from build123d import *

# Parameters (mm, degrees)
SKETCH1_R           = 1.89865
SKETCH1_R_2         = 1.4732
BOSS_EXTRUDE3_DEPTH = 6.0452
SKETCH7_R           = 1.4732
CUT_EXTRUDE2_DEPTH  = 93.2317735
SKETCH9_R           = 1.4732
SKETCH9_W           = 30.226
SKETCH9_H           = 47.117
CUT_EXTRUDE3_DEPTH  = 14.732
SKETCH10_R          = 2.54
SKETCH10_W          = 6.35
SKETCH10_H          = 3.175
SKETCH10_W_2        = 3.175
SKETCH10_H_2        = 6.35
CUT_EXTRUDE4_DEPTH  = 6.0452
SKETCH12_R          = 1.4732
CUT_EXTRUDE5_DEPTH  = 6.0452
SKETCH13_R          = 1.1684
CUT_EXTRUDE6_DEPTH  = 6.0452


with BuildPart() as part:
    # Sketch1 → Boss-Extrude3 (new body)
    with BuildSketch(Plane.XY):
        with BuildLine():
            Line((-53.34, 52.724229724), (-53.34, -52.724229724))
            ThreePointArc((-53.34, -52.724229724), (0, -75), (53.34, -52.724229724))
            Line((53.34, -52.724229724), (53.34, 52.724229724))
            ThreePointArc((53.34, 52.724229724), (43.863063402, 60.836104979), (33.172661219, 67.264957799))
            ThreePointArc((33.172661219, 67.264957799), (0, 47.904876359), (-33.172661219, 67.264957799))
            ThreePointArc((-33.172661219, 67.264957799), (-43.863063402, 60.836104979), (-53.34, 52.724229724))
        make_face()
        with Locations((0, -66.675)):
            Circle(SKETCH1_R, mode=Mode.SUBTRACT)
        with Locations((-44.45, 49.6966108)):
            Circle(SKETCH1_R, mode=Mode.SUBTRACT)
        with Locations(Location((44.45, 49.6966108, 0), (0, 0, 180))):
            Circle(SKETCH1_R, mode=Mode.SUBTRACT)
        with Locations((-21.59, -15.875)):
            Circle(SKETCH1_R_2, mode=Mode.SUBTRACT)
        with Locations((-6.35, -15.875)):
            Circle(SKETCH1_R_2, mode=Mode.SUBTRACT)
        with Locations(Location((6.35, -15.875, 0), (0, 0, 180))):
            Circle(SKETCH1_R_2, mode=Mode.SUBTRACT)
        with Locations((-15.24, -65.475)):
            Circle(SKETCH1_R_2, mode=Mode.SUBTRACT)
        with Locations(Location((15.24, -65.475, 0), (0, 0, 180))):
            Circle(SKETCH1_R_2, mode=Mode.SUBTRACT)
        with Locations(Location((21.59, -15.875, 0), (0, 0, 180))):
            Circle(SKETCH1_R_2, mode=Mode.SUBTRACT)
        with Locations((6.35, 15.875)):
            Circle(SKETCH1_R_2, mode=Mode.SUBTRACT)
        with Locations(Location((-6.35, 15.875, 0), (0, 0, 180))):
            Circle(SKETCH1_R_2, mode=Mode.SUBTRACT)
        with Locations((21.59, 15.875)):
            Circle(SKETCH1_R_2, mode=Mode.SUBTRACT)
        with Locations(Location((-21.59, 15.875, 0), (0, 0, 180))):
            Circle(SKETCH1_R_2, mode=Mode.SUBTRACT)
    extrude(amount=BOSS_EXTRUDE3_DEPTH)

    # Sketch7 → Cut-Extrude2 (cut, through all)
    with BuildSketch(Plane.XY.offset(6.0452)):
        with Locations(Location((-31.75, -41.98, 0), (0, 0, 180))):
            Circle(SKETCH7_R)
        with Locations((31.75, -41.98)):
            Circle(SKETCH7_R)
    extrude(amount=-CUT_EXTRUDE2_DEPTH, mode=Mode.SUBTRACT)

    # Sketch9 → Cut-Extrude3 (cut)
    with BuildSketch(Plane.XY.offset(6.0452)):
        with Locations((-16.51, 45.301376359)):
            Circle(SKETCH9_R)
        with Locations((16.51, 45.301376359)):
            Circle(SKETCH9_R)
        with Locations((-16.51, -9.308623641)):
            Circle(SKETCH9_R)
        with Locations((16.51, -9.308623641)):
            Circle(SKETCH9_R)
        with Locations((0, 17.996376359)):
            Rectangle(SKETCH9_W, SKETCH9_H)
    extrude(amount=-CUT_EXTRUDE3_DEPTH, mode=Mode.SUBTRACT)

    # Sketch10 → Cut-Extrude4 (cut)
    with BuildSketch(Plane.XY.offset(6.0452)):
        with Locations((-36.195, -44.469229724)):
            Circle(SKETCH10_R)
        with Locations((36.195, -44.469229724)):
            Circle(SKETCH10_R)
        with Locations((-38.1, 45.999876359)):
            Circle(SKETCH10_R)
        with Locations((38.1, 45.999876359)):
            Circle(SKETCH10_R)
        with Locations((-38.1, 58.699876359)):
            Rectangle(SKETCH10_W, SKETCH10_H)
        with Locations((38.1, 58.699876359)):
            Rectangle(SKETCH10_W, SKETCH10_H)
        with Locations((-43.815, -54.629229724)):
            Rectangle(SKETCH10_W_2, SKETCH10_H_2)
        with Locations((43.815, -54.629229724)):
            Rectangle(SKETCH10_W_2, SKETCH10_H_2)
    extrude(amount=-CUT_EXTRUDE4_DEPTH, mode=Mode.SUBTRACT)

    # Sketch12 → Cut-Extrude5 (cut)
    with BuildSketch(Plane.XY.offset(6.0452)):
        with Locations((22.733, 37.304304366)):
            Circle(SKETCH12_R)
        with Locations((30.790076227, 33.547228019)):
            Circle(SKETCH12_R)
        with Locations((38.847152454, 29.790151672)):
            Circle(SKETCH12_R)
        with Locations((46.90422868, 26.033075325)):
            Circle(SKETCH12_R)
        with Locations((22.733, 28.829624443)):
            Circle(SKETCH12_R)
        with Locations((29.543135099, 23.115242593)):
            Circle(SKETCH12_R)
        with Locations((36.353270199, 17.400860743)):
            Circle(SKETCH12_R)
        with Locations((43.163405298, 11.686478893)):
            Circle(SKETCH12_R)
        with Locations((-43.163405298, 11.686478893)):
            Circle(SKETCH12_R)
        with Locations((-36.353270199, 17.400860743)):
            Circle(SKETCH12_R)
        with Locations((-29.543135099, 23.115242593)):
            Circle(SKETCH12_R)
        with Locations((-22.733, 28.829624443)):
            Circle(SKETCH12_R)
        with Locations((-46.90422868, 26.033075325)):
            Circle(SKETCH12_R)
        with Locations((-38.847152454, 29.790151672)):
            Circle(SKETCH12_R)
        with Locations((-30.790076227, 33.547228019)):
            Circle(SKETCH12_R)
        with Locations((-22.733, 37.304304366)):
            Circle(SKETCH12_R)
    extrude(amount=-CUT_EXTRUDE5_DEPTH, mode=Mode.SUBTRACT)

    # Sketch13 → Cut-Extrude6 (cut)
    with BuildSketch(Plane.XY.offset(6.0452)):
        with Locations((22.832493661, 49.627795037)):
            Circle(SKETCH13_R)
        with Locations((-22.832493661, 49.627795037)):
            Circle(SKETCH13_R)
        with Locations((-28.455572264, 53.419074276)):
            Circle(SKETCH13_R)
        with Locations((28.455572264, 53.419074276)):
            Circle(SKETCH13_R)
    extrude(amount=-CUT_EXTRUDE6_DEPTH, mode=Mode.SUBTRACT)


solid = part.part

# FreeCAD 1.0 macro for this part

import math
import FreeCAD as App
import Part
import Sketcher

V = App.Vector
Q = App.Units.Quantity


def add_polygon(sketch, points):
    """Adds a closed chain of lines whose ends are joined by coincident constraints."""
    first, n = sketch.GeometryCount, len(points)
    for a, b in zip(points, points[1:] + points[:1]):
        sketch.addGeometry(Part.LineSegment(App.Vector(*a, 0), App.Vector(*b, 0)), False)
    for i in range(n):
        sketch.addConstraint(Sketcher.Constraint("Coincident", first + i, 2, first + (i + 1) % n, 1))

doc = App.newDocument("Part")
body = doc.addObject("PartDesign::Body", "Body")

sketch1 = doc.addObject("Sketcher::SketchObject", "Sketch")
body.addObject(sketch1)
sketch1.AttachmentSupport = (doc.XY_Plane, [""])
sketch1.MapMode = "FlatFace"
sketch1.addGeometry([
    Part.LineSegment(V(-53.3, 52.7, 0), V(-53.3, -52.7, 0)),
    Part.ArcOfCircle(Part.Circle(V(0, 0, 0), V(0, 0, 1), 75), math.radians(-135), math.radians(-45)),
    Part.LineSegment(V(53.3, -52.7, 0), V(53.3, 52.7, 0)),
    Part.ArcOfCircle(Part.Circle(V(0, 0, 0), V(0, 0, 1), 75), math.radians(44.67), math.radians(63.75)),
    Part.ArcOfCircle(Part.Circle(V(0, 86, 0), V(0, 0, 1), 38.1), math.radians(-151), math.radians(-29)),
    Part.ArcOfCircle(Part.Circle(V(0, 0, 0), V(0, 0, 1), 75), math.radians(116.25), math.radians(135.33)),
    Part.Circle(V(-15.2, -65.5, 0), V(0, 0, 1), 1.5),
    Part.Circle(V(-21.6, -15.9, 0), V(0, 0, 1), 1.5),
    Part.Circle(V(-6.3, -15.9, 0), V(0, 0, 1), 1.5),
    Part.Circle(V(0, -66.7, 0), V(0, 0, 1), 1.9),
    Part.Circle(V(15.2, -65.5, 0), V(0, 0, 1), 1.5),
    Part.Circle(V(6.3, -15.9, 0), V(0, 0, 1), 1.5),
    Part.Circle(V(21.6, -15.9, 0), V(0, 0, 1), 1.5),
    Part.Circle(V(-21.6, 15.9, 0), V(0, 0, 1), 1.5),
    Part.Circle(V(-6.3, 15.9, 0), V(0, 0, 1), 1.5),
    Part.Circle(V(-44.5, 49.7, 0), V(0, 0, 1), 1.9),
    Part.Circle(V(6.3, 15.9, 0), V(0, 0, 1), 1.5),
    Part.Circle(V(21.6, 15.9, 0), V(0, 0, 1), 1.5),
    Part.Circle(V(44.5, 49.7, 0), V(0, 0, 1), 1.9),
], False)
sketch1.addConstraint([
    Sketcher.Constraint("Coincident", 0, 2, 1, 1),
    Sketcher.Constraint("Coincident", 1, 2, 2, 1),
    Sketcher.Constraint("Coincident", 2, 2, 3, 1),
    Sketcher.Constraint("Coincident", 3, 2, 4, 2),
    Sketcher.Constraint("Coincident", 4, 1, 5, 1),
    Sketcher.Constraint("Coincident", 5, 2, 0, 1),
    Sketcher.Constraint("Vertical", 0),
    Sketcher.Constraint("Vertical", 2),
    Sketcher.Constraint("Coincident", 1, 3, -1, 1),
    Sketcher.Constraint("Coincident", 3, 3, -1, 1),
    Sketcher.Constraint("Coincident", 5, 3, -1, 1),
    Sketcher.Constraint("Equal", 1, 3),
    Sketcher.Constraint("Equal", 3, 5),
    Sketcher.Constraint("Equal", 6, 7),
    Sketcher.Constraint("Equal", 7, 8),
    Sketcher.Constraint("Equal", 8, 10),
    Sketcher.Constraint("Equal", 10, 11),
    Sketcher.Constraint("Equal", 11, 12),
    Sketcher.Constraint("Equal", 12, 13),
    Sketcher.Constraint("Equal", 13, 14),
    Sketcher.Constraint("Equal", 9, 15),
    Sketcher.Constraint("Equal", 14, 16),
    Sketcher.Constraint("Equal", 16, 17),
    Sketcher.Constraint("Equal", 15, 18),
    Sketcher.Constraint("Symmetric", 12, 3, 13, 3, -1, 1),
    Sketcher.Constraint("Symmetric", 11, 3, 14, 3, -1, 1),
    Sketcher.Constraint("Symmetric", 8, 3, 16, 3, -1, 1),
    Sketcher.Constraint("Symmetric", 7, 3, 17, 3, -1, 1),
    Sketcher.Constraint("Symmetric", 6, 3, 10, 3, -2),
    Sketcher.Constraint("Symmetric", 8, 3, 11, 3, -2),
    Sketcher.Constraint("Symmetric", 7, 3, 12, 3, -2),
    Sketcher.Constraint("Symmetric", 15, 3, 18, 3, -2),
    Sketcher.Constraint("PointOnObject", 4, 3, -2),
    Sketcher.Constraint("PointOnObject", 9, 3, -2),
    Sketcher.Constraint("Horizontal", 7, 3, 8, 3),
    Sketcher.Constraint("Horizontal", 0, 2, 1, 2),
    Sketcher.Constraint("Radius", 4, Q("1.5 in")),
    Sketcher.Constraint("Diameter", 6, Q("0.116 in")),
    Sketcher.Constraint("DistanceY", 9, 3, 8, 3, Q("2 in")),
    Sketcher.Constraint("DistanceX", 14, 3, 18, 3, Q("2 in")),
    Sketcher.Constraint("Diameter", 9, Q("0.1495 in")),
    Sketcher.Constraint("DistanceX", 6, 3, -1, 1, Q("0.6 in")),
    Sketcher.Constraint("DistanceX", 0, 2, -1, 1, Q("2.1 in")),
    Sketcher.Constraint("DistanceX", 7, 3, 8, 3, Q("0.6 in")),
    Sketcher.Constraint("DistanceX", 8, 3, 11, 3, Q("0.5 in")),
    Sketcher.Constraint("Radius", 1, Q("75 mm")),
    Sketcher.Constraint("DistanceY", 7, 3, 13, 3, Q("1.25 in")),
    Sketcher.Constraint("DistanceY", 6, 3, -1, 1, Q("65.475 mm")),
    Sketcher.Constraint("DistanceY", -1, 1, 15, 3, Q("49.696611 mm")),
    Sketcher.Constraint("DistanceX", -1, 1, 3, 2, Q("33.172661 mm")),
])
pad1 = doc.addObject("PartDesign::Pad", "Pad")
body.addObject(pad1)
pad1.Profile = sketch1
pad1.Length = Q("0.238 in")

sketch2 = doc.addObject("Sketcher::SketchObject", "Sketch001")
body.addObject(sketch2)
sketch2.AttachmentSupport = (doc.XY_Plane, [""])
sketch2.MapMode = "FlatFace"
sketch2.AttachmentOffset = App.Placement(V(0, 0, 0.238 * 25.4), App.Rotation())
sketch2.addGeometry([
    Part.Circle(V(-31.8, -42, 0), V(0, 0, 1), 1.5),
    Part.Circle(V(31.8, -42, 0), V(0, 0, 1), 1.5),
], False)
sketch2.addConstraint([
    Sketcher.Constraint("Equal", 0, 1),
    Sketcher.Constraint("Symmetric", 0, 3, 1, 3, -2),
    Sketcher.Constraint("Diameter", 0, Q("0.116 in")),
    Sketcher.Constraint("DistanceX", 0, 3, 1, 3, Q("2.5 in")),
    Sketcher.Constraint("DistanceY", 0, 3, -1, 1, Q("41.98 mm")),
])
pocket1 = doc.addObject("PartDesign::Pocket", "Pocket")
body.addObject(pocket1)
pocket1.Profile = sketch2
pocket1.Type = "ThroughAll"

sketch3 = doc.addObject("Sketcher::SketchObject", "Sketch002")
body.addObject(sketch3)
sketch3.AttachmentSupport = (doc.XY_Plane, [""])
sketch3.MapMode = "FlatFace"
sketch3.AttachmentOffset = App.Placement(V(0, 0, 0.238 * 25.4), App.Rotation())
sketch3.addGeometry(Part.Circle(V(-16.5, 45.3, 0), V(0, 0, 1), 1.5), False)
sketch3.addGeometry(Part.Circle(V(16.5, 45.3, 0), V(0, 0, 1), 1.5), False)
sketch3.addGeometry(Part.Circle(V(-16.5, -9.3, 0), V(0, 0, 1), 1.5), False)
sketch3.addGeometry(Part.Circle(V(16.5, -9.3, 0), V(0, 0, 1), 1.5), False)
add_polygon(sketch3, [(-15.1, 41.6), (-15.1, -5.6), (15.1, -5.6), (15.1, 41.6)])
sketch3.addConstraint([
    Sketcher.Constraint("Vertical", 4),
    Sketcher.Constraint("Horizontal", 5),
    Sketcher.Constraint("Vertical", 6),
    Sketcher.Constraint("Horizontal", 7),
    Sketcher.Constraint("Equal", 0, 1),
    Sketcher.Constraint("Equal", 1, 2),
    Sketcher.Constraint("Equal", 2, 3),
    Sketcher.Constraint("Symmetric", 0, 3, 1, 3, -2),
    Sketcher.Constraint("Symmetric", 2, 3, 3, 3, -2),
    Sketcher.Constraint("Vertical", 0, 3, 2, 3),
    Sketcher.Constraint("Diameter", 0, Q("0.116 in")),
    Sketcher.Constraint("DistanceX", 5, 1, 5, 2, Q("1.19 in")),
    Sketcher.Constraint("DistanceX", 0, 3, 1, 3, Q("1.3 in")),
    Sketcher.Constraint("DistanceY", 4, 2, 4, 1, Q("1.855 in")),
    Sketcher.Constraint("DistanceY", 2, 3, 0, 3, Q("2.15 in")),
    Sketcher.Constraint("DistanceX", 4, 2, -1, 1, Q("0.595 in")),
    Sketcher.Constraint("DistanceY", 2, 3, 4, 2, Q("0.1475 in")),
    Sketcher.Constraint("DistanceY", -1, 1, 0, 3, Q("45.301376 mm")),
])
pocket2 = doc.addObject("PartDesign::Pocket", "Pocket001")
body.addObject(pocket2)
pocket2.Profile = sketch3
pocket2.Length = Q("0.58 in")

sketch4 = doc.addObject("Sketcher::SketchObject", "Sketch003")
body.addObject(sketch4)
sketch4.AttachmentSupport = (doc.XY_Plane, [""])
sketch4.MapMode = "FlatFace"
sketch4.AttachmentOffset = App.Placement(V(0, 0, 0.238 * 25.4), App.Rotation())
sketch4.addGeometry(Part.Circle(V(-36.2, -44.5, 0), V(0, 0, 1), 2.5), False)
sketch4.addGeometry(Part.Circle(V(36.2, -44.5, 0), V(0, 0, 1), 2.5), False)
sketch4.addGeometry(Part.Circle(V(-38.1, 46, 0), V(0, 0, 1), 2.5), False)
sketch4.addGeometry(Part.Circle(V(38.1, 46, 0), V(0, 0, 1), 2.5), False)
add_polygon(sketch4, [(-41.3, 60.3), (-41.3, 57.1), (-34.9, 57.1), (-34.9, 60.3)])
add_polygon(sketch4, [(34.9, 60.3), (34.9, 57.1), (41.3, 57.1), (41.3, 60.3)])
add_polygon(sketch4, [(-45.4, -51.5), (-45.4, -57.8), (-42.2, -57.8), (-42.2, -51.5)])
add_polygon(sketch4, [(42.2, -51.5), (42.2, -57.8), (45.4, -57.8), (45.4, -51.5)])
sketch4.addConstraint([
    Sketcher.Constraint("Vertical", 4),
    Sketcher.Constraint("Horizontal", 5),
    Sketcher.Constraint("Vertical", 6),
    Sketcher.Constraint("Horizontal", 7),
    Sketcher.Constraint("Vertical", 8),
    Sketcher.Constraint("Horizontal", 9),
    Sketcher.Constraint("Vertical", 10),
    Sketcher.Constraint("Horizontal", 11),
    Sketcher.Constraint("Vertical", 12),
    Sketcher.Constraint("Horizontal", 13),
    Sketcher.Constraint("Vertical", 14),
    Sketcher.Constraint("Horizontal", 15),
    Sketcher.Constraint("Vertical", 16),
    Sketcher.Constraint("Horizontal", 17),
    Sketcher.Constraint("Vertical", 18),
    Sketcher.Constraint("Horizontal", 19),
    Sketcher.Constraint("Equal", 0, 1),
    Sketcher.Constraint("Equal", 1, 2),
    Sketcher.Constraint("Equal", 2, 3),
    Sketcher.Constraint("Symmetric", 0, 3, 1, 3, -2),
    Sketcher.Constraint("Symmetric", 2, 3, 3, 3, -2),
    Sketcher.Constraint("Symmetric", 5, 2, 8, 2, -2),
    Sketcher.Constraint("Symmetric", 7, 2, 10, 2, -2),
    Sketcher.Constraint("Symmetric", 13, 2, 16, 2, -2),
    Sketcher.Constraint("Symmetric", 15, 2, 18, 2, -2),
    Sketcher.Constraint("Equal", 19, 4),
    Sketcher.Constraint("Equal", 11, 12),
    Sketcher.Constraint("Diameter", 0, Q("0.2 in")),
    Sketcher.Constraint("DistanceX", 2, 3, 3, 3, Q("3 in")),
    Sketcher.Constraint("DistanceX", 4, 2, 8, 2, Q("3 in")),
    Sketcher.Constraint("DistanceX", 5, 1, 5, 2, Q("0.25 in")),
    Sketcher.Constraint("DistanceX", 4, 2, 0, 3, Q("0.2 in")),
    Sketcher.Constraint("DistanceX", 13, 1, 13, 2, Q("0.125 in")),
    Sketcher.Constraint("DistanceX", 12, 2, 16, 2, Q("3.45 in")),
    Sketcher.Constraint("DistanceY", 2, 3, 4, 2, Q("0.4375 in")),
    Sketcher.Constraint("DistanceY", 12, 2, 0, 3, Q("0.525 in")),
    Sketcher.Constraint("DistanceY", 0, 3, -1, 1, Q("44.46923 mm")),
    Sketcher.Constraint("DistanceY", -1, 1, 2, 3, Q("45.999876 mm")),
])
pocket3 = doc.addObject("PartDesign::Pocket", "Pocket002")
body.addObject(pocket3)
pocket3.Profile = sketch4
pocket3.Length = Q("0.238 in")

sketch5 = doc.addObject("Sketcher::SketchObject", "Sketch004")
body.addObject(sketch5)
sketch5.AttachmentSupport = (doc.XY_Plane, [""])
sketch5.MapMode = "FlatFace"
sketch5.AttachmentOffset = App.Placement(V(0, 0, 0.238 * 25.4), App.Rotation())
sketch5.addGeometry([
    Part.Circle(V(22.7, 37.3, 0), V(0, 0, 1), 1.5),
    Part.Circle(V(30.8, 33.5, 0), V(0, 0, 1), 1.5),
    Part.Circle(V(38.8, 29.8, 0), V(0, 0, 1), 1.5),
    Part.Circle(V(46.9, 26, 0), V(0, 0, 1), 1.5),
    Part.Circle(V(22.7, 28.8, 0), V(0, 0, 1), 1.5),
    Part.Circle(V(29.5, 23.1, 0), V(0, 0, 1), 1.5),
    Part.Circle(V(36.4, 17.4, 0), V(0, 0, 1), 1.5),
    Part.Circle(V(43.2, 11.7, 0), V(0, 0, 1), 1.5),
    Part.Circle(V(-43.2, 11.7, 0), V(0, 0, 1), 1.5),
    Part.Circle(V(-36.4, 17.4, 0), V(0, 0, 1), 1.5),
    Part.Circle(V(-29.5, 23.1, 0), V(0, 0, 1), 1.5),
    Part.Circle(V(-22.7, 28.8, 0), V(0, 0, 1), 1.5),
    Part.Circle(V(-46.9, 26, 0), V(0, 0, 1), 1.5),
    Part.Circle(V(-38.8, 29.8, 0), V(0, 0, 1), 1.5),
    Part.Circle(V(-30.8, 33.5, 0), V(0, 0, 1), 1.5),
    Part.Circle(V(-22.7, 37.3, 0), V(0, 0, 1), 1.5),
], False)
sketch5.addConstraint([
    Sketcher.Constraint("Equal", 0, 1),
    Sketcher.Constraint("Equal", 1, 2),
    Sketcher.Constraint("Equal", 2, 3),
    Sketcher.Constraint("Equal", 3, 4),
    Sketcher.Constraint("Equal", 4, 5),
    Sketcher.Constraint("Equal", 5, 6),
    Sketcher.Constraint("Equal", 6, 7),
    Sketcher.Constraint("Equal", 7, 8),
    Sketcher.Constraint("Equal", 8, 9),
    Sketcher.Constraint("Equal", 9, 10),
    Sketcher.Constraint("Equal", 10, 11),
    Sketcher.Constraint("Equal", 11, 12),
    Sketcher.Constraint("Equal", 12, 13),
    Sketcher.Constraint("Equal", 13, 14),
    Sketcher.Constraint("Equal", 14, 15),
    Sketcher.Constraint("Symmetric", 7, 3, 8, 3, -2),
    Sketcher.Constraint("Symmetric", 6, 3, 9, 3, -2),
    Sketcher.Constraint("Symmetric", 5, 3, 10, 3, -2),
    Sketcher.Constraint("Symmetric", 4, 3, 11, 3, -2),
    Sketcher.Constraint("Symmetric", 3, 3, 12, 3, -2),
    Sketcher.Constraint("Symmetric", 2, 3, 13, 3, -2),
    Sketcher.Constraint("Symmetric", 1, 3, 14, 3, -2),
    Sketcher.Constraint("Symmetric", 0, 3, 15, 3, -2),
    Sketcher.Constraint("Vertical", 0, 3, 4, 3),
    Sketcher.Constraint("Diameter", 0, Q("0.116 in")),
    Sketcher.Constraint("DistanceX", 11, 3, 4, 3, Q("1.79 in")),
    Sketcher.Constraint("DistanceX", 5, 3, 2, 3, Q("0.3662999 in")),
    Sketcher.Constraint("DistanceY", 9, 3, 0, 3, Q("0.7836001 in")),
    Sketcher.Constraint("DistanceY", -1, 1, 1, 3, Q("33.547228 mm")),
    Sketcher.Constraint("DistanceY", -1, 1, 2, 3, Q("29.790152 mm")),
    Sketcher.Constraint("DistanceX", -1, 1, 3, 3, Q("46.904229 mm")),
    Sketcher.Constraint("DistanceX", -1, 1, 6, 3, Q("36.35327 mm")),
    Sketcher.Constraint("DistanceY", -1, 1, 6, 3, Q("17.400861 mm")),
    Sketcher.Constraint("DistanceY", -1, 1, 7, 3, Q("11.686479 mm")),
    Sketcher.Constraint("DistanceY", 3, 3, 0, 3, Q("11.271229 mm")),
    Sketcher.Constraint("DistanceY", 4, 3, 0, 3, Q("8.47468 mm")),
    Sketcher.Constraint("DistanceY", 5, 3, 4, 3, Q("5.714382 mm")),
    Sketcher.Constraint("DistanceX", 5, 3, 1, 3, Q("1.246941 mm")),
    Sketcher.Constraint("DistanceX", 5, 3, 7, 3, Q("13.62027 mm")),
    Sketcher.Constraint("DistanceX", 8, 3, 5, 3, Q("72.70654 mm")),
])
pocket4 = doc.addObject("PartDesign::Pocket", "Pocket003")
body.addObject(pocket4)
pocket4.Profile = sketch5
pocket4.Length = Q("0.238 in")

sketch6 = doc.addObject("Sketcher::SketchObject", "Sketch005")
body.addObject(sketch6)
sketch6.AttachmentSupport = (doc.XY_Plane, [""])
sketch6.MapMode = "FlatFace"
sketch6.AttachmentOffset = App.Placement(V(0, 0, 0.238 * 25.4), App.Rotation())
sketch6.addGeometry([
    Part.Circle(V(22.8, 49.6, 0), V(0, 0, 1), 1.2),
    Part.Circle(V(-22.8, 49.6, 0), V(0, 0, 1), 1.2),
    Part.Circle(V(-28.5, 53.4, 0), V(0, 0, 1), 1.2),
    Part.Circle(V(28.5, 53.4, 0), V(0, 0, 1), 1.2),
], False)
sketch6.addConstraint([
    Sketcher.Constraint("Equal", 0, 1),
    Sketcher.Constraint("Equal", 1, 2),
    Sketcher.Constraint("Equal", 2, 3),
    Sketcher.Constraint("Symmetric", 0, 3, 1, 3, -2),
    Sketcher.Constraint("Symmetric", 2, 3, 3, 3, -2),
    Sketcher.Constraint("Diameter", 0, Q("0.092 in")),
    Sketcher.Constraint("DistanceX", 2, 3, 1, 3, Q("5.623079 mm")),
    Sketcher.Constraint("DistanceY", 1, 3, 2, 3, Q("3.791279 mm")),
    Sketcher.Constraint("DistanceX", -1, 1, 0, 3, Q("22.832494 mm")),
    Sketcher.Constraint("DistanceY", -1, 1, 0, 3, Q("49.627795 mm")),
])
pocket5 = doc.addObject("PartDesign::Pocket", "Pocket004")
body.addObject(pocket5)
pocket5.Profile = sketch6
pocket5.Length = Q("0.238 in")

doc.recompute()
